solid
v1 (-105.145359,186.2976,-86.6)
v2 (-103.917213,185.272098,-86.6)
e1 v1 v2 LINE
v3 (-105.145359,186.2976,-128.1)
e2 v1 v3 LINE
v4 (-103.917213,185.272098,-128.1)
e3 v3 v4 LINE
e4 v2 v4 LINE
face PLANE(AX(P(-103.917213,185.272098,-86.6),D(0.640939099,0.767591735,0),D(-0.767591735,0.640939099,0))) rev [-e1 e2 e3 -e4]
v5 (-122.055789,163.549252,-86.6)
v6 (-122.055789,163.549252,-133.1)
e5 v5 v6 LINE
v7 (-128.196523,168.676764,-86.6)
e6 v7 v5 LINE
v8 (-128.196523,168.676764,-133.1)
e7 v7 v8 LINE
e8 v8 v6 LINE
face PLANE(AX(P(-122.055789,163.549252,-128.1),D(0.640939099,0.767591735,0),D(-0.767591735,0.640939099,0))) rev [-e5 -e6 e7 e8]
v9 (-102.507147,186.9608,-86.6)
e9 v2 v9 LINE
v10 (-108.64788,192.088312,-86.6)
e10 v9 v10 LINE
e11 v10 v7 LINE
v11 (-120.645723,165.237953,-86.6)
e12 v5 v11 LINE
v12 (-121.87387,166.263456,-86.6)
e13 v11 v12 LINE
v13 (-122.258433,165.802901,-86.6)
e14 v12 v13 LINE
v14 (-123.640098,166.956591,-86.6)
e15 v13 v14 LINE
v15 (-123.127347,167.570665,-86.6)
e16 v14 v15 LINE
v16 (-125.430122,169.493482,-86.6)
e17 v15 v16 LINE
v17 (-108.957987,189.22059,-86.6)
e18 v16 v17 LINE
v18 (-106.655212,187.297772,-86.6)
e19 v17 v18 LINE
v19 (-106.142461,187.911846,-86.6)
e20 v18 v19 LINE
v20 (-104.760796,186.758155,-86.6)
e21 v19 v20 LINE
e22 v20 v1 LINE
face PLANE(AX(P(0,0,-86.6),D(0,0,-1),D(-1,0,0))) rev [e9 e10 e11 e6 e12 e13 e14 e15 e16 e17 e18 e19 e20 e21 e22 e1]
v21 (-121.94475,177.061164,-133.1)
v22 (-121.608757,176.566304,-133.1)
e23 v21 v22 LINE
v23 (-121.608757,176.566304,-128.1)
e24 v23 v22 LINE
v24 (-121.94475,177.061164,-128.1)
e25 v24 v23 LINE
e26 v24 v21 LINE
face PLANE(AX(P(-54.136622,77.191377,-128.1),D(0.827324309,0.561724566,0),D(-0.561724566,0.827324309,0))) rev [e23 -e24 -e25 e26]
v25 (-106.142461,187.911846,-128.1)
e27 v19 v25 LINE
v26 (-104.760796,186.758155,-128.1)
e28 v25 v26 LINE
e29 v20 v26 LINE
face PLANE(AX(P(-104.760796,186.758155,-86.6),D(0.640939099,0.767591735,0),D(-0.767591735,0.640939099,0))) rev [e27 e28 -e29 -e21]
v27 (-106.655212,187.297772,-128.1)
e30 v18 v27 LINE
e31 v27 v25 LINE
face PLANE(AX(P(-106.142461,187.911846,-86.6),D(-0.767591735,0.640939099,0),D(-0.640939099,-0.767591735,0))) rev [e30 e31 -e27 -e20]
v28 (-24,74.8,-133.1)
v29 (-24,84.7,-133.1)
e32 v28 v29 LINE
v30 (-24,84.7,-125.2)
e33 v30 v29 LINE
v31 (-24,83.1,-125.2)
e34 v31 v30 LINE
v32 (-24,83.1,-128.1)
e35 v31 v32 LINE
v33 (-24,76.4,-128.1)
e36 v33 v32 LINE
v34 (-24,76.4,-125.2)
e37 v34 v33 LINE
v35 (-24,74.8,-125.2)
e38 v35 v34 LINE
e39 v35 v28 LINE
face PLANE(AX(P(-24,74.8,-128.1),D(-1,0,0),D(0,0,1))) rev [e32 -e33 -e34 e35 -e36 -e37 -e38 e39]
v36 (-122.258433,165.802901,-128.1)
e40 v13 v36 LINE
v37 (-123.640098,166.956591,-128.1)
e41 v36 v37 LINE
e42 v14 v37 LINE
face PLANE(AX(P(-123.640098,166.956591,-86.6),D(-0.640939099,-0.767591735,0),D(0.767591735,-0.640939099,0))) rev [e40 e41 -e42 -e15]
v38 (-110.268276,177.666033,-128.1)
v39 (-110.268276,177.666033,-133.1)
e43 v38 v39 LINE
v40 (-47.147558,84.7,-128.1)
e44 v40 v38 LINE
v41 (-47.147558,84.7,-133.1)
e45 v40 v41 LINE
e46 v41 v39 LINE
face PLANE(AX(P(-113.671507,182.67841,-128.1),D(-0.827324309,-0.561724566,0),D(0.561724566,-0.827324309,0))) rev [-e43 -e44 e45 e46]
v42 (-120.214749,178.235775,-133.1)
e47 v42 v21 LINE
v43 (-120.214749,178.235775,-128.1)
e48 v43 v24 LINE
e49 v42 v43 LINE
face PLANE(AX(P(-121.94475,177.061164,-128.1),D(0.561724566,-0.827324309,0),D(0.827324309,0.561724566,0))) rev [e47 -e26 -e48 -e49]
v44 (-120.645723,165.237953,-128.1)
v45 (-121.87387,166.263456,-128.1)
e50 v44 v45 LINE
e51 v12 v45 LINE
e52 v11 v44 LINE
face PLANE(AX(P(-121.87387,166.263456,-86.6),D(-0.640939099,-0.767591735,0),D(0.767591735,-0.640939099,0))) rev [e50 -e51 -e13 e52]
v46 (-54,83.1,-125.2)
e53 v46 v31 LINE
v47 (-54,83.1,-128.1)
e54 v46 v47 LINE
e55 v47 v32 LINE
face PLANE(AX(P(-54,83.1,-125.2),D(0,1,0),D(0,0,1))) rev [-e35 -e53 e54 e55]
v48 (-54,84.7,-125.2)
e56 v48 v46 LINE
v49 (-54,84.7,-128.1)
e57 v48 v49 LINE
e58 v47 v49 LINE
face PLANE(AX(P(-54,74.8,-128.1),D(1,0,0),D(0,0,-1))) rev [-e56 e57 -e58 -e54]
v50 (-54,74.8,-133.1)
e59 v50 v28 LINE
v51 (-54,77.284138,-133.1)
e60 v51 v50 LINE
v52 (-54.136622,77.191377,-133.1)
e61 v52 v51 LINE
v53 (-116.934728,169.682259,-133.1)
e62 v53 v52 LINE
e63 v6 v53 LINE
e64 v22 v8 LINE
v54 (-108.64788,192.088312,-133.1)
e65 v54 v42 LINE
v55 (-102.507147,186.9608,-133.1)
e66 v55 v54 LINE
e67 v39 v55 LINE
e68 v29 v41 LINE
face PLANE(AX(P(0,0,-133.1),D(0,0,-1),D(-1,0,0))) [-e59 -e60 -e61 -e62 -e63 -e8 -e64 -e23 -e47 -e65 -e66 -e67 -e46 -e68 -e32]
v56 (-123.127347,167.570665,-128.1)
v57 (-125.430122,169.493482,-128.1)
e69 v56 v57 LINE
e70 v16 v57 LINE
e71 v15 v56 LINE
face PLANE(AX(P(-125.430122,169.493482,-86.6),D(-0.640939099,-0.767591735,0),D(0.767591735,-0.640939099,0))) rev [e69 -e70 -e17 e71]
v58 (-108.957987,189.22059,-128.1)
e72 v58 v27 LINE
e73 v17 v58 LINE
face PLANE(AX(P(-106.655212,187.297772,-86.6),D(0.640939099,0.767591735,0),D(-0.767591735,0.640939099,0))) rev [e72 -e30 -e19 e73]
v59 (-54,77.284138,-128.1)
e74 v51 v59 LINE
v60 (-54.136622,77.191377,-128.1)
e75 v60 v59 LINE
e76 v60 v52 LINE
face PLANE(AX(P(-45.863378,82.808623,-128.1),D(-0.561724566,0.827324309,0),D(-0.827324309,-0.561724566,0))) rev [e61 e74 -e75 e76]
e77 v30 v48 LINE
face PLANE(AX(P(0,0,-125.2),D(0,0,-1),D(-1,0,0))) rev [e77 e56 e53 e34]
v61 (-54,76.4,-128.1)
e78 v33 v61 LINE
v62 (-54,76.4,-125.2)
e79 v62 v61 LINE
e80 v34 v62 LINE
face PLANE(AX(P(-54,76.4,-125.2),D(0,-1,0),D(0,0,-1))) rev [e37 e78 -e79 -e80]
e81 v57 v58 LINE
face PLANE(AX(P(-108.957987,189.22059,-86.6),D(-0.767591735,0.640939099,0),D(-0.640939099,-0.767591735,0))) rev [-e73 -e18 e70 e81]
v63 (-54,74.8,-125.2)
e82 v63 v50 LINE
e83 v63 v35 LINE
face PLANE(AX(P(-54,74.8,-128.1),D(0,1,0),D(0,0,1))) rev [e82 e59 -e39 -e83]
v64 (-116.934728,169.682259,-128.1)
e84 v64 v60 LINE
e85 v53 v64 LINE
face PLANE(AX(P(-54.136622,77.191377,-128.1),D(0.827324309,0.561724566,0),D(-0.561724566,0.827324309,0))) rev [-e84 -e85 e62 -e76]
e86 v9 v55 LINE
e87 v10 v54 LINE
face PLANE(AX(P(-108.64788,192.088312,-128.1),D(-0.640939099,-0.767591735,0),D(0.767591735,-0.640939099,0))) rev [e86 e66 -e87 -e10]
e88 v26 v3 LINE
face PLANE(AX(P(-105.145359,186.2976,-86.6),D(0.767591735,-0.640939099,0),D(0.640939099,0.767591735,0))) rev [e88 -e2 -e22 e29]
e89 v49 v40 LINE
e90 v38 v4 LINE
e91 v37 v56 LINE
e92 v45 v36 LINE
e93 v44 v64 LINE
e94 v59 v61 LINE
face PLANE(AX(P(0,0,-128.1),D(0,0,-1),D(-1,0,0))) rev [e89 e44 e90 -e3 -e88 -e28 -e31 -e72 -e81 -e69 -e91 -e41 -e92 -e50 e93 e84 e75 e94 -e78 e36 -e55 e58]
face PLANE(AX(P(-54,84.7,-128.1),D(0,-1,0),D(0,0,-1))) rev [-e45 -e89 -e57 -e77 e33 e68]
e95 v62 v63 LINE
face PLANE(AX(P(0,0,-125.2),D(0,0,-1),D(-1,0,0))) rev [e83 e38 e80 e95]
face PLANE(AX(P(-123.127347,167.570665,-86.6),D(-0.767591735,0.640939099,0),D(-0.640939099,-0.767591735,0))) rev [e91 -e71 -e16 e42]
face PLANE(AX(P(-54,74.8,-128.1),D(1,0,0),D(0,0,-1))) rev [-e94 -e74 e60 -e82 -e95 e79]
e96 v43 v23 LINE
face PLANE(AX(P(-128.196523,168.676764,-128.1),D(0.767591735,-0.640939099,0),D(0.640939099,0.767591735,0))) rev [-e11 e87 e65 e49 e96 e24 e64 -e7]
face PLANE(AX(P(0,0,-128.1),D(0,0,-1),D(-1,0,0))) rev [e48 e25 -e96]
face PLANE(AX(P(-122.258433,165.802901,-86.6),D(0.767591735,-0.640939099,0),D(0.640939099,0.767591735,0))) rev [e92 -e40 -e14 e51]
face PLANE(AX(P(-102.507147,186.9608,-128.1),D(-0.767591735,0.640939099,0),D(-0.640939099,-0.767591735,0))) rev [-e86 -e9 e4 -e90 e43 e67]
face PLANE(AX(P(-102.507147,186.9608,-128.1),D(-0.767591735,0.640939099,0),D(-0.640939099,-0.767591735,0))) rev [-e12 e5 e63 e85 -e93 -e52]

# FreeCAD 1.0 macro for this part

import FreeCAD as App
import Part
import Sketcher
Q = App.Units.Quantity


def add_polygon(sketch, points):
    """Adds a closed chain of lines whose ends are joined by coincident constraints."""
    first, n = sketch.GeometryCount, len(points)
    for a, b in zip(points, points[1:] + points[:1]):
        sketch.addGeometry(Part.LineSegment(App.Vector(*a, 0), App.Vector(*b, 0)), False)
    for i in range(n):
        sketch.addConstraint(Sketcher.Constraint("Coincident", first + i, 2, first + (i + 1) % n, 1))

doc = App.newDocument("Part")
body = doc.addObject("PartDesign::Body", "Body")

sketch1 = body.newObject("Sketcher::SketchObject", "Sketch")
sketch1.AttachmentSupport = (doc.getObject("XY_Plane"), [""])
sketch1.MapMode = "FlatFace"
sketch1.AttachmentOffset = App.Placement(App.Vector(0, 0, -133.1), App.Rotation())
add_polygon(sketch1, [(-54, 84.7), (-54, 74.8), (-24, 74.8), (-24, 84.7)])
sketch1.addConstraint(Sketcher.Constraint("Vertical", 0))
sketch1.addConstraint(Sketcher.Constraint("Horizontal", 1))
sketch1.addConstraint(Sketcher.Constraint("Vertical", 2))
sketch1.addConstraint(Sketcher.Constraint("Horizontal", 3))
sketch1.addConstraint(Sketcher.Constraint("DistanceX", 1, 1, 1, 2, Q("30 mm")))
sketch1.addConstraint(Sketcher.Constraint("DistanceY", 0, 2, 0, 1, Q("9.9 mm")))
sketch1.addConstraint(Sketcher.Constraint("DistanceX", 0, 2, -1, 1, Q("54 mm")))
sketch1.addConstraint(Sketcher.Constraint("DistanceY", -1, 1, 0, 2, Q("74.8 mm")))
pad1 = body.newObject("PartDesign::Pad", "Pad")
pad1.Profile = sketch1
pad1.Length = 5

sketch2 = body.newObject("Sketcher::SketchObject", "Sketch001")
sketch2.AttachmentSupport = (doc.getObject("XY_Plane"), [""])
sketch2.MapMode = "FlatFace"
sketch2.AttachmentOffset = App.Placement(App.Vector(0, 0, -128.1), App.Rotation())
add_polygon(sketch2, [(-54, 84.7), (-54, 83.1), (-24, 83.1), (-24, 84.7)])
add_polygon(sketch2, [(-54, 76.4), (-54, 74.8), (-24, 74.8), (-24, 76.4)])
sketch2.addConstraint(Sketcher.Constraint("Vertical", 0))
sketch2.addConstraint(Sketcher.Constraint("Horizontal", 1))
sketch2.addConstraint(Sketcher.Constraint("Vertical", 2))
sketch2.addConstraint(Sketcher.Constraint("Horizontal", 3))
sketch2.addConstraint(Sketcher.Constraint("Vertical", 4))
sketch2.addConstraint(Sketcher.Constraint("Horizontal", 5))
sketch2.addConstraint(Sketcher.Constraint("Vertical", 6))
sketch2.addConstraint(Sketcher.Constraint("Horizontal", 7))
sketch2.addConstraint(Sketcher.Constraint("Vertical", 3, 2, 4, 2))
sketch2.addConstraint(Sketcher.Constraint("Vertical", 2, 2, 5, 2))
sketch2.addConstraint(Sketcher.Constraint("Equal", 2, 4))
sketch2.addConstraint(Sketcher.Constraint("DistanceX", 1, 1, 1, 2, Q("30 mm")))
sketch2.addConstraint(Sketcher.Constraint("DistanceY", 0, 2, 0, 1, Q("1.6 mm")))
sketch2.addConstraint(Sketcher.Constraint("DistanceX", 0, 2, -1, 1, Q("54 mm")))
sketch2.addConstraint(Sketcher.Constraint("DistanceY", -1, 1, 0, 2, Q("83.1 mm")))
sketch2.addConstraint(Sketcher.Constraint("DistanceY", -1, 1, 4, 2, Q("74.8 mm")))
pad2 = body.newObject("PartDesign::Pad", "Pad001")
pad2.Profile = sketch2
pad2.Length = 2.9

sketch3 = body.newObject("Sketcher::SketchObject", "Sketch002")
sketch3.AttachmentSupport = (doc.getObject("XY_Plane"), [""])
sketch3.MapMode = "FlatFace"
sketch3.AttachmentOffset = App.Placement(App.Vector(0, 0, -133.1), App.Rotation())
add_polygon(sketch3, [(-121.94475, 177.061164), (-54.136622, 77.191377), (-45.863378, 82.808623), (-113.671507, 182.67841)])
sketch3.addConstraint(Sketcher.Constraint("Distance", 1, Q("10 mm")))
sketch3.addConstraint(Sketcher.Constraint("Distance", 3, Q("10 mm")))
sketch3.addConstraint(Sketcher.Constraint("DistanceX", 0, 2, -1, 1, Q("54.136622 mm")))
sketch3.addConstraint(Sketcher.Constraint("DistanceX", 1, 2, -1, 1, Q("45.863378 mm")))
sketch3.addConstraint(Sketcher.Constraint("DistanceY", -1, 1, 2, 2, Q("182.67841 mm")))
sketch3.addConstraint(Sketcher.Constraint("DistanceX", 3, 2, -1, 1, Q("121.94475 mm")))
sketch3.addConstraint(Sketcher.Constraint("DistanceX", 2, 2, 1, 2, Q("67.808128 mm")))
sketch3.addConstraint(Sketcher.Constraint("DistanceY", 1, 2, 3, 2, Q("94.252541 mm")))
pad3 = body.newObject("PartDesign::Pad", "Pad002")
pad3.Profile = sketch3
pad3.Length = 5

sketch4 = body.newObject("Sketcher::SketchObject", "Sketch003")
sketch4.AttachmentSupport = (doc.getObject("XY_Plane"), [""])
sketch4.MapMode = "FlatFace"
sketch4.AttachmentOffset = App.Placement(App.Vector(0, 0, -133.1), App.Rotation())
add_polygon(sketch4, [(-108.64788, 192.088312), (-128.196523, 168.676764), (-122.055789, 163.549252), (-102.507147, 186.9608)])
sketch4.addConstraint(Sketcher.Constraint("Perpendicular", 0, 1))
sketch4.addConstraint(Sketcher.Constraint("Perpendicular", 1, 2))
sketch4.addConstraint(Sketcher.Constraint("Perpendicular", 2, 3))
sketch4.addConstraint(Sketcher.Constraint("Distance", 1, Q("8 mm")))
sketch4.addConstraint(Sketcher.Constraint("Distance", 0, Q("30.5 mm")))
sketch4.addConstraint(Sketcher.Constraint("DistanceY", -1, 1, 2, 2, Q("186.9608 mm")))
sketch4.addConstraint(Sketcher.Constraint("DistanceX", 1, 2, -1, 1, Q("122.055789 mm")))
sketch4.addConstraint(Sketcher.Constraint("DistanceY", -1, 1, 1, 2, Q("163.549252 mm")))
pad4 = body.newObject("PartDesign::Pad", "Pad003")
pad4.Profile = sketch4
pad4.Length = 5

sketch5 = body.newObject("Sketcher::SketchObject", "Sketch004")
sketch5.AttachmentSupport = (doc.getObject("XY_Plane"), [""])
sketch5.MapMode = "FlatFace"
sketch5.AttachmentOffset = App.Placement(App.Vector(0, 0, -133.1), App.Rotation())
add_polygon(sketch5, [(-102.507147, 186.9608), (-108.64788, 192.088312), (-128.196523, 168.676764), (-122.055789, 163.549252), (-120.645723, 165.237953), (-121.87387, 166.263456), (-122.258433, 165.802901), (-123.640098, 166.956591), (-123.127347, 167.570665), (-125.430122, 169.493482), (-108.957987, 189.22059), (-106.655212, 187.297772), (-106.142461, 187.911846), (-104.760796, 186.758155), (-105.145359, 186.2976), (-103.917213, 185.272098)])
sketch5.addConstraint(Sketcher.Constraint("Perpendicular", 0, 1))
sketch5.addConstraint(Sketcher.Constraint("Perpendicular", 1, 2))
sketch5.addConstraint(Sketcher.Constraint("Perpendicular", 2, 3))
sketch5.addConstraint(Sketcher.Constraint("Perpendicular", 3, 4))
sketch5.addConstraint(Sketcher.Constraint("Perpendicular", 4, 5))
sketch5.addConstraint(Sketcher.Constraint("Perpendicular", 5, 6))
sketch5.addConstraint(Sketcher.Constraint("Perpendicular", 6, 7))
sketch5.addConstraint(Sketcher.Constraint("Perpendicular", 7, 8))
sketch5.addConstraint(Sketcher.Constraint("Perpendicular", 8, 9))
sketch5.addConstraint(Sketcher.Constraint("Perpendicular", 9, 10))
sketch5.addConstraint(Sketcher.Constraint("Perpendicular", 10, 11))
sketch5.addConstraint(Sketcher.Constraint("Perpendicular", 11, 12))
sketch5.addConstraint(Sketcher.Constraint("Perpendicular", 12, 13))
sketch5.addConstraint(Sketcher.Constraint("Perpendicular", 13, 14))
sketch5.addConstraint(Sketcher.Constraint("Perpendicular", 14, 15))
sketch5.addConstraint(Sketcher.Constraint("Equal", 0, 2))
sketch5.addConstraint(Sketcher.Constraint("Equal", 8, 10))
sketch5.addConstraint(Sketcher.Constraint("Equal", 7, 11))
sketch5.addConstraint(Sketcher.Constraint("Equal", 6, 12))
sketch5.addConstraint(Sketcher.Constraint("Equal", 5, 13))
sketch5.addConstraint(Sketcher.Constraint("Equal", 3, 15))
sketch5.addConstraint(Sketcher.Constraint("Distance", 0, Q("8 mm")))
sketch5.addConstraint(Sketcher.Constraint("Distance", 8, Q("3 mm")))
sketch5.addConstraint(Sketcher.Constraint("Distance", 1, Q("30.5 mm")))
sketch5.addConstraint(Sketcher.Constraint("Distance", 3, Q("2.2 mm")))
sketch5.addConstraint(Sketcher.Constraint("Distance", 4, Q("1.6 mm")))
sketch5.addConstraint(Sketcher.Constraint("Distance", 5, Q("0.6 mm")))
sketch5.addConstraint(Sketcher.Constraint("Distance", 6, Q("1.8 mm")))
sketch5.addConstraint(Sketcher.Constraint("Distance", 7, Q("0.8 mm")))
sketch5.addConstraint(Sketcher.Constraint("DistanceY", 6, 2, 9, 2, Q("22.263998 mm")))
sketch5.addConstraint(Sketcher.Constraint("DistanceY", -1, 1, 5, 2, Q("165.802901 mm")))
sketch5.addConstraint(Sketcher.Constraint("DistanceX", 6, 2, -1, 1, Q("123.640098 mm")))
pad5 = body.newObject("PartDesign::Pad", "Pad004")
pad5.Profile = sketch5
pad5.Length = 46.5

doc.recompute()
